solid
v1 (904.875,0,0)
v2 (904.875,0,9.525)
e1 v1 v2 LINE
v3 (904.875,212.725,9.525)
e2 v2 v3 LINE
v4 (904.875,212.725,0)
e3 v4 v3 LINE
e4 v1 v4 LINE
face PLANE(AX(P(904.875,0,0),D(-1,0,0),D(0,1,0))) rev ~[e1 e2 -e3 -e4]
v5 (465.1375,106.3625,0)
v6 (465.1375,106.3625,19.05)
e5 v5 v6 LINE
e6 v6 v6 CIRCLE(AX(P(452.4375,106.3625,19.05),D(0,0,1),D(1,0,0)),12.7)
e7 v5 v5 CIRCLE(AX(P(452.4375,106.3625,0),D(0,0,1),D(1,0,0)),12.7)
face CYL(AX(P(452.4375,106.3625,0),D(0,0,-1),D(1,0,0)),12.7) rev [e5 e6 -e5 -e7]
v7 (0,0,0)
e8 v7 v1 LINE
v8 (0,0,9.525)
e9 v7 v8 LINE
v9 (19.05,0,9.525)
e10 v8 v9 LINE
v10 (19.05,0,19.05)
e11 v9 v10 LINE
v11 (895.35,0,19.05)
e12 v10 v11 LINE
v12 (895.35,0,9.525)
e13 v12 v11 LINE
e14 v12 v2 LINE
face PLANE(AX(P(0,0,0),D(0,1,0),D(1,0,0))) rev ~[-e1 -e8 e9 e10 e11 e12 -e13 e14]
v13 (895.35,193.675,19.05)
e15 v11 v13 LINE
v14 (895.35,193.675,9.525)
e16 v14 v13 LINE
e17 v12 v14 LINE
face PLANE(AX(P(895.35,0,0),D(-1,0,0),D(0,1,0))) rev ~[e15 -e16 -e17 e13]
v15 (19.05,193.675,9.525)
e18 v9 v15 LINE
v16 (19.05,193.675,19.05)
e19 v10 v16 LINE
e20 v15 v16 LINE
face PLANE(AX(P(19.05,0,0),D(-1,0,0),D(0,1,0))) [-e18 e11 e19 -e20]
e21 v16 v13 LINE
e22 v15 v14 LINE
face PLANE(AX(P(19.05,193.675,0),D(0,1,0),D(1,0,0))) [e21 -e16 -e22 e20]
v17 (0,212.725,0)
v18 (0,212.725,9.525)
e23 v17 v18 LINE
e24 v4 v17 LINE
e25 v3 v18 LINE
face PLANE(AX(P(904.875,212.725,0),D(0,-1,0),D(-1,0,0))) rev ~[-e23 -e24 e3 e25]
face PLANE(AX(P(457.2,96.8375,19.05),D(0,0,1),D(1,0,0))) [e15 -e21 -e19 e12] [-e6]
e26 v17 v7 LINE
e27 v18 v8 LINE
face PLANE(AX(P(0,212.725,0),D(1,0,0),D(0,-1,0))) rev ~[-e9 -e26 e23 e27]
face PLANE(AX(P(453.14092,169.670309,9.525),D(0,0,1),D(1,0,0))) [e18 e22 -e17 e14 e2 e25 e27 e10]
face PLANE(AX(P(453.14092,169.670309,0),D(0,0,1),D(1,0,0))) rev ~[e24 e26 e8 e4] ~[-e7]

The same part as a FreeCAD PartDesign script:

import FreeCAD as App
import Part
import Sketcher
Q = App.Units.Quantity


def add_polygon(sketch, points):
    """Adds a closed chain of lines whose ends are joined by coincident constraints."""
    first, n = sketch.GeometryCount, len(points)
    for a, b in zip(points, points[1:] + points[:1]):
        sketch.addGeometry(Part.LineSegment(App.Vector(*a, 0), App.Vector(*b, 0)), False)
    for i in range(n):
        sketch.addConstraint(Sketcher.Constraint("Coincident", first + i, 2, first + (i + 1) % n, 1))

doc = App.newDocument("Part")
body = doc.addObject("PartDesign::Body", "Body")

sketch1 = body.newObject("Sketcher::SketchObject", "Sketch")
sketch1.AttachmentSupport = (doc.getObject("XY_Plane"), [""])
sketch1.MapMode = "FlatFace"
add_polygon(sketch1, [(19, 194), (19, 0), (895, 0), (895, 194)])
sketch1.addGeometry(Part.Circle(App.Vector(452, 106, 0), App.Vector(0, 0, 1), 13), False)
sketch1.addConstraint([
    Sketcher.Constraint("Vertical", 0),
    Sketcher.Constraint("Horizontal", 1),
    Sketcher.Constraint("Vertical", 2),
    Sketcher.Constraint("Horizontal", 3),
    Sketcher.Constraint("PointOnObject", 0, 2, -1),
    Sketcher.Constraint("Diameter", 4, Q("1 in")),
    Sketcher.Constraint("DistanceX", 1, 1, 1, 2, Q("34.5 in")),
    Sketcher.Constraint("DistanceY", 0, 2, 0, 1, Q("7.625 in")),
    Sketcher.Constraint("DistanceX", -1, 1, 0, 2, Q("0.75 in")),
    Sketcher.Constraint("DistanceX", -1, 1, 4, 3, Q("17.8125 in")),
    Sketcher.Constraint("DistanceY", -1, 1, 4, 3, Q("4.1875 in")),
])
pad1 = body.newObject("PartDesign::Pad", "Pad")
pad1.Profile = sketch1
pad1.Length = Q("0.75 in")

sketch2 = body.newObject("Sketcher::SketchObject", "Sketch001")
sketch2.AttachmentSupport = (doc.getObject("XY_Plane"), [""])
sketch2.MapMode = "FlatFace"
add_polygon(sketch2, [(0, 213), (0, 0), (905, 0), (905, 213)])
sketch2.addGeometry(Part.Circle(App.Vector(452, 106, 0), App.Vector(0, 0, 1), 13), False)
sketch2.addConstraint([
    Sketcher.Constraint("Vertical", 0),
    Sketcher.Constraint("Horizontal", 1),
    Sketcher.Constraint("Vertical", 2),
    Sketcher.Constraint("Horizontal", 3),
    Sketcher.Constraint("Coincident", 0, 2, -1, 1),
    Sketcher.Constraint("Diameter", 4, Q("1 in")),
    Sketcher.Constraint("DistanceX", 1, 1, 1, 2, Q("35.625 in")),
    Sketcher.Constraint("DistanceY", 0, 2, 0, 1, Q("8.375 in")),
    Sketcher.Constraint("DistanceX", -1, 1, 4, 3, Q("17.8125 in")),
    Sketcher.Constraint("DistanceY", -1, 1, 4, 3, Q("4.1875 in")),
])
pad2 = body.newObject("PartDesign::Pad", "Pad001")
pad2.Profile = sketch2
pad2.Length = Q("0.375 in")

doc.recompute()
